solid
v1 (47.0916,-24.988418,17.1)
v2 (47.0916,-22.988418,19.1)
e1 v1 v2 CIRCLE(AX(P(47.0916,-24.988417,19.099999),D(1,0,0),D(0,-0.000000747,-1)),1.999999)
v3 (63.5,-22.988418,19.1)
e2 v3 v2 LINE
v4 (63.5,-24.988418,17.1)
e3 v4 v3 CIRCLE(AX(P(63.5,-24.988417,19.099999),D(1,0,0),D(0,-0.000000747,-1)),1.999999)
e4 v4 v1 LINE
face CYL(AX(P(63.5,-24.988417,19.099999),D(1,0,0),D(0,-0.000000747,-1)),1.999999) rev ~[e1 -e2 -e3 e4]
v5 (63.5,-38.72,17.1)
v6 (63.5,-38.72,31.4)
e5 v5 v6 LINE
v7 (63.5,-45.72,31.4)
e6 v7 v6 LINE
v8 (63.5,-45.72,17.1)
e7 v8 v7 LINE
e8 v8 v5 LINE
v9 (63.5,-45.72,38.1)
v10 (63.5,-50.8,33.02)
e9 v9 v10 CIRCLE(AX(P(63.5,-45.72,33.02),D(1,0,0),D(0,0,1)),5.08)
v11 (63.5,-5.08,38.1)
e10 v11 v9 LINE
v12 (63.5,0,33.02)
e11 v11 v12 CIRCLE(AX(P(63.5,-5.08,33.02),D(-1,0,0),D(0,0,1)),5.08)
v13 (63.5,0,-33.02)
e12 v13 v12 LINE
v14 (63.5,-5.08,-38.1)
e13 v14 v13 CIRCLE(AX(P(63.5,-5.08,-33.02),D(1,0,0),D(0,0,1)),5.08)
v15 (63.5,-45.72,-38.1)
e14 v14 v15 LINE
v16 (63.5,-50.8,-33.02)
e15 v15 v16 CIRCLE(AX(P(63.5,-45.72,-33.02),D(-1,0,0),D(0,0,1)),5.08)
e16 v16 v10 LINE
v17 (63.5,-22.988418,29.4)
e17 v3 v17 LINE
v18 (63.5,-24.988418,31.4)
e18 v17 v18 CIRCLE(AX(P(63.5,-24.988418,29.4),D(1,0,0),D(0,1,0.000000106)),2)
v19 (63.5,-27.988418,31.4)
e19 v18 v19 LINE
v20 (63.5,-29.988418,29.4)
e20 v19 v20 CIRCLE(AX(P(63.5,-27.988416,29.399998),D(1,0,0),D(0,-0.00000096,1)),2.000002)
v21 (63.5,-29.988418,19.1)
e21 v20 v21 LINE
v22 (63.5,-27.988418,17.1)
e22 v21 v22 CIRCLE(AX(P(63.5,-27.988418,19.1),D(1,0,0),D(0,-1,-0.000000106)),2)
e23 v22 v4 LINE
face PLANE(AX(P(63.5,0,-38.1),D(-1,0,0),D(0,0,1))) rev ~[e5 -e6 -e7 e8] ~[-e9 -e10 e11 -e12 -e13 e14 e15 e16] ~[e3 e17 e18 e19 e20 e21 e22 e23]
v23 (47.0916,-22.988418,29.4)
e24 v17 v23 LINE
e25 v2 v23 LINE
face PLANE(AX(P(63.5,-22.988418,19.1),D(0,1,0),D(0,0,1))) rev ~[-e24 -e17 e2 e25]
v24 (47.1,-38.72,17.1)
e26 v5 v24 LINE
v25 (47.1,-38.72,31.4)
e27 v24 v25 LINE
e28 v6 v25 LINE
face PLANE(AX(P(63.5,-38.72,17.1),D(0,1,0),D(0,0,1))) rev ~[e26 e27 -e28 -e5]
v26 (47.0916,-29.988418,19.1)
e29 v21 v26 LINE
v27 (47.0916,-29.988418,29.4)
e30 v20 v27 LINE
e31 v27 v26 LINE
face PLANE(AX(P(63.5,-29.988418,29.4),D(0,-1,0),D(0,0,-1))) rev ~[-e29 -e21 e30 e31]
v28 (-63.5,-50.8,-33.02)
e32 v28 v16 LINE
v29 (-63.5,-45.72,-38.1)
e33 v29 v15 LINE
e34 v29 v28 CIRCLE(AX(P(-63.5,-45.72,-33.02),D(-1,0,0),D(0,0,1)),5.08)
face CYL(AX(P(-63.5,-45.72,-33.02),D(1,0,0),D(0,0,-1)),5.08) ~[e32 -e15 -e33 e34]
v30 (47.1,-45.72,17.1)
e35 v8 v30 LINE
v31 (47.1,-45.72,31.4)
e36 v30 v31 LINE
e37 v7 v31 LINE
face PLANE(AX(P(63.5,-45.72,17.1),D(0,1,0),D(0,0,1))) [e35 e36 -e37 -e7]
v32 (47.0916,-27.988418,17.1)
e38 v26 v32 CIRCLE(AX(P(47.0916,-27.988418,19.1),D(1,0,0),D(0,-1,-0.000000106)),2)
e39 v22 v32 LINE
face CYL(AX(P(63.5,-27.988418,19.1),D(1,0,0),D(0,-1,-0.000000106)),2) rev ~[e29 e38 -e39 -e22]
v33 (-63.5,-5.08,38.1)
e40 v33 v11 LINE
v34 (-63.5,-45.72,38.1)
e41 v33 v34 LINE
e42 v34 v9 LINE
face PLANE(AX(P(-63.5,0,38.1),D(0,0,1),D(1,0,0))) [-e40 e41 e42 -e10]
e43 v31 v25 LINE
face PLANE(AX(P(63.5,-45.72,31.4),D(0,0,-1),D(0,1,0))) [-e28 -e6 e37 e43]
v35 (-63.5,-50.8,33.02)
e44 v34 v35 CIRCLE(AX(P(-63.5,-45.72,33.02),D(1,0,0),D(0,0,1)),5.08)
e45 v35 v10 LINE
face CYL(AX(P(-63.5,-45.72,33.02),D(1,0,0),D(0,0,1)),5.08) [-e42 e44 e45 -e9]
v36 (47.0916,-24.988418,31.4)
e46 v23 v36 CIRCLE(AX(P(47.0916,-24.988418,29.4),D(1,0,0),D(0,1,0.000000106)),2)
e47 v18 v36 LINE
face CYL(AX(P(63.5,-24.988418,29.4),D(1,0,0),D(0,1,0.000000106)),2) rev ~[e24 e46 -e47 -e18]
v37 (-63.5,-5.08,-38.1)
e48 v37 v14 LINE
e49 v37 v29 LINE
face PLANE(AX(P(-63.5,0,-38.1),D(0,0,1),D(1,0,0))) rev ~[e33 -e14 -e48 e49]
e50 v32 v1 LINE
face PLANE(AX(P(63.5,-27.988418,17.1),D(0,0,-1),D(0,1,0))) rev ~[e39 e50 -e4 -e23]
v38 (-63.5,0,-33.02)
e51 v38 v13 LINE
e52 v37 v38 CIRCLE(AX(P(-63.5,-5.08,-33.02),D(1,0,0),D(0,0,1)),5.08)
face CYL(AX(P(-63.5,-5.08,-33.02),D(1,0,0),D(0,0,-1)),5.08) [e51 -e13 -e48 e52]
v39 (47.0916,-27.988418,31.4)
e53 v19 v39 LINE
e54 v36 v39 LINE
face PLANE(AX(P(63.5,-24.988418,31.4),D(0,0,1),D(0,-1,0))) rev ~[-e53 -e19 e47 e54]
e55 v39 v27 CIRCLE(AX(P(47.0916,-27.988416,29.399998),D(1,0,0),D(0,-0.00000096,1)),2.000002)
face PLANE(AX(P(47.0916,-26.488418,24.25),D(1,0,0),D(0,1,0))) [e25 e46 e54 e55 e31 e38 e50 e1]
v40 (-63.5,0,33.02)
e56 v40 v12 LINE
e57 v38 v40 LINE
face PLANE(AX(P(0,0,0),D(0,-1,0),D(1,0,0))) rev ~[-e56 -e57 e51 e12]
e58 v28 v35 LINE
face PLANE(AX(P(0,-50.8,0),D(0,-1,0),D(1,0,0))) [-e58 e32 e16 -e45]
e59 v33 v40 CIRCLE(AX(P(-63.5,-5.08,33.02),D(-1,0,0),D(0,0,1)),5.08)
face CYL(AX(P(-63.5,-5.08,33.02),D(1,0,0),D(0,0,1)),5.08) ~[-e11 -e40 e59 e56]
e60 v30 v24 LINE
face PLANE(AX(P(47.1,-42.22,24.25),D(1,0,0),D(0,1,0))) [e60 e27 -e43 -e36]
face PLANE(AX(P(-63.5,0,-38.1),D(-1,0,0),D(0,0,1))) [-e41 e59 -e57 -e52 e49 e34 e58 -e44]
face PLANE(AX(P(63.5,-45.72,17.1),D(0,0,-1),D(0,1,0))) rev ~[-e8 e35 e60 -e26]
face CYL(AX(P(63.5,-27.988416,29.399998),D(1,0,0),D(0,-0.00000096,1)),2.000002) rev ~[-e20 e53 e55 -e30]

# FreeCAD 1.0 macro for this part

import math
import FreeCAD as App
import Part
import Sketcher

V = App.Vector
Q = App.Units.Quantity


def edges_at(feature, points):
    """Names of the edges that pass closest to the given points."""
    edges = feature.Shape.Edges
    near = lambda p: min(range(len(edges)), key=lambda i: edges[i].distToShape(Part.Vertex(*p))[0])
    return sorted({f"Edge{near(p) + 1}" for p in points})


def add_polygon(sketch, points):
    """Adds a closed chain of lines whose ends are joined by coincident constraints."""
    first, n = sketch.GeometryCount, len(points)
    for a, b in zip(points, points[1:] + points[:1]):
        sketch.addGeometry(Part.LineSegment(App.Vector(*a, 0), App.Vector(*b, 0)), False)
    for i in range(n):
        sketch.addConstraint(Sketcher.Constraint("Coincident", first + i, 2, first + (i + 1) % n, 1))

doc = App.newDocument("Part")
body = doc.addObject("PartDesign::Body", "Body")

sketch1 = doc.addObject("Sketcher::SketchObject", "Sketch")
body.addObject(sketch1)
sketch1.AttachmentSupport = (doc.XZ_Plane, [""])
sketch1.MapMode = "FlatFace"
add_polygon(sketch1, [(-63.5, 38.1), (-63.5, -38.1), (63.5, -38.1), (63.5, 38.1)])
sketch1.addConstraint(Sketcher.Constraint("Vertical", 0))
sketch1.addConstraint(Sketcher.Constraint("Horizontal", 1))
sketch1.addConstraint(Sketcher.Constraint("Vertical", 2))
sketch1.addConstraint(Sketcher.Constraint("Horizontal", 3))
sketch1.addConstraint(Sketcher.Constraint("Symmetric", 0, 2, 2, 2, -1, 1))
sketch1.addConstraint(Sketcher.Constraint("DistanceX", 1, 1, 1, 2, Q("127 mm")))
sketch1.addConstraint(Sketcher.Constraint("DistanceY", 0, 2, 0, 1, Q("76.2 mm")))
pad1 = doc.addObject("PartDesign::Pad", "Pad")
body.addObject(pad1)
pad1.Profile = sketch1
pad1.Length = 50.8
doc.recompute()

fillet = doc.addObject("PartDesign::Fillet", "Fillet")
body.addObject(fillet)
fillet.Base = (pad1, edges_at(pad1, [
    (0, -50.8, 38.1),
    (0, 0, 38.1),
    (0, 0, -38.1),
    (0, -50.8, -38.1),
]))
fillet.Radius = 5.08

sketch2 = doc.addObject("Sketcher::SketchObject", "Sketch001")
body.addObject(sketch2)
sketch2.AttachmentSupport = (doc.YZ_Plane, [""])
sketch2.MapMode = "FlatFace"
sketch2.AttachmentOffset = App.Placement(V(0, 0, 63.5), App.Rotation())
add_polygon(sketch2, [(-45.72, 31.4), (-45.72, 17.1), (-38.72, 17.1), (-38.72, 31.4)])
sketch2.addConstraint(Sketcher.Constraint("Vertical", 0))
sketch2.addConstraint(Sketcher.Constraint("Horizontal", 1))
sketch2.addConstraint(Sketcher.Constraint("Vertical", 2))
sketch2.addConstraint(Sketcher.Constraint("Horizontal", 3))
sketch2.addConstraint(Sketcher.Constraint("DistanceX", 1, 1, 1, 2, Q("7 mm")))
sketch2.addConstraint(Sketcher.Constraint("DistanceY", 0, 2, 0, 1, Q("14.3 mm")))
sketch2.addConstraint(Sketcher.Constraint("DistanceY", -1, 1, 0, 2, Q("17.1 mm")))
sketch2.addConstraint(Sketcher.Constraint("DistanceX", 0, 2, -1, 1, Q("45.72 mm")))
pocket1 = doc.addObject("PartDesign::Pocket", "Pocket")
body.addObject(pocket1)
pocket1.Profile = sketch2
pocket1.Length = 16.4

sketch3 = doc.addObject("Sketcher::SketchObject", "Sketch002")
body.addObject(sketch3)
sketch3.AttachmentSupport = (doc.YZ_Plane, [""])
sketch3.MapMode = "FlatFace"
sketch3.AttachmentOffset = App.Placement(V(0, 0, 63.5), App.Rotation())
sketch3.addGeometry(Part.LineSegment(V(-24.988418, 31.4, 0), V(-27.988418, 31.4, 0)), False)
sketch3.addGeometry(Part.ArcOfCircle(Part.Circle(V(-27.988416, 29.399998, 0), V(0, 0, 1), 2.000002), math.radians(90.000055), math.radians(179.999945)), False)
sketch3.addGeometry(Part.LineSegment(V(-29.988418, 29.4, 0), V(-29.988418, 19.1, 0)), False)
sketch3.addGeometry(Part.ArcOfCircle(Part.Circle(V(-27.988418, 19.1, 0), V(0, 0, 1), 2), math.radians(-179.999994), math.radians(-90.000006)), False)
sketch3.addGeometry(Part.LineSegment(V(-27.988418, 17.1, 0), V(-24.988418, 17.1, 0)), False)
sketch3.addGeometry(Part.ArcOfCircle(Part.Circle(V(-24.988417, 19.099999, 0), V(0, 0, 1), 1.999999), math.radians(-90.000043), math.radians(0.000043)), False)
sketch3.addGeometry(Part.LineSegment(V(-22.988418, 19.1, 0), V(-22.988418, 29.4, 0)), False)
sketch3.addGeometry(Part.ArcOfCircle(Part.Circle(V(-24.988418, 29.4, 0), V(0, 0, 1), 2), math.radians(0.000006), math.radians(89.999994)), False)
sketch3.addConstraint(Sketcher.Constraint("Tangent", 0, 2, 1, 1))
sketch3.addConstraint(Sketcher.Constraint("Tangent", 1, 2, 2, 1))
sketch3.addConstraint(Sketcher.Constraint("Tangent", 2, 2, 3, 1))
sketch3.addConstraint(Sketcher.Constraint("Tangent", 3, 2, 4, 1))
sketch3.addConstraint(Sketcher.Constraint("Tangent", 4, 2, 5, 1))
sketch3.addConstraint(Sketcher.Constraint("Tangent", 5, 2, 6, 1))
sketch3.addConstraint(Sketcher.Constraint("Tangent", 6, 2, 7, 1))
sketch3.addConstraint(Sketcher.Constraint("Tangent", 7, 2, 0, 1))
sketch3.addConstraint(Sketcher.Constraint("Horizontal", 0))
sketch3.addConstraint(Sketcher.Constraint("Vertical", 2))
sketch3.addConstraint(Sketcher.Constraint("Horizontal", 4))
sketch3.addConstraint(Sketcher.Constraint("Vertical", 6))
sketch3.addConstraint(Sketcher.Constraint("Equal", 1, 3))
sketch3.addConstraint(Sketcher.Constraint("Equal", 3, 5))
sketch3.addConstraint(Sketcher.Constraint("Equal", 5, 7))
sketch3.addConstraint(Sketcher.Constraint("Radius", 1, Q("2.000002 mm")))
sketch3.addConstraint(Sketcher.Constraint("DistanceX", 0, 2, 0, 1, Q("3 mm")))
sketch3.addConstraint(Sketcher.Constraint("DistanceY", 2, 2, 2, 1, Q("10.3 mm")))
sketch3.addConstraint(Sketcher.Constraint("DistanceY", -1, 1, 1, 3, Q("29.399998 mm")))
sketch3.addConstraint(Sketcher.Constraint("DistanceX", 7, 3, -1, 1, Q("24.988418 mm")))
pocket2 = doc.addObject("PartDesign::Pocket", "Pocket001")
body.addObject(pocket2)
pocket2.Profile = sketch3
pocket2.Length = 16.4084

doc.recompute()
